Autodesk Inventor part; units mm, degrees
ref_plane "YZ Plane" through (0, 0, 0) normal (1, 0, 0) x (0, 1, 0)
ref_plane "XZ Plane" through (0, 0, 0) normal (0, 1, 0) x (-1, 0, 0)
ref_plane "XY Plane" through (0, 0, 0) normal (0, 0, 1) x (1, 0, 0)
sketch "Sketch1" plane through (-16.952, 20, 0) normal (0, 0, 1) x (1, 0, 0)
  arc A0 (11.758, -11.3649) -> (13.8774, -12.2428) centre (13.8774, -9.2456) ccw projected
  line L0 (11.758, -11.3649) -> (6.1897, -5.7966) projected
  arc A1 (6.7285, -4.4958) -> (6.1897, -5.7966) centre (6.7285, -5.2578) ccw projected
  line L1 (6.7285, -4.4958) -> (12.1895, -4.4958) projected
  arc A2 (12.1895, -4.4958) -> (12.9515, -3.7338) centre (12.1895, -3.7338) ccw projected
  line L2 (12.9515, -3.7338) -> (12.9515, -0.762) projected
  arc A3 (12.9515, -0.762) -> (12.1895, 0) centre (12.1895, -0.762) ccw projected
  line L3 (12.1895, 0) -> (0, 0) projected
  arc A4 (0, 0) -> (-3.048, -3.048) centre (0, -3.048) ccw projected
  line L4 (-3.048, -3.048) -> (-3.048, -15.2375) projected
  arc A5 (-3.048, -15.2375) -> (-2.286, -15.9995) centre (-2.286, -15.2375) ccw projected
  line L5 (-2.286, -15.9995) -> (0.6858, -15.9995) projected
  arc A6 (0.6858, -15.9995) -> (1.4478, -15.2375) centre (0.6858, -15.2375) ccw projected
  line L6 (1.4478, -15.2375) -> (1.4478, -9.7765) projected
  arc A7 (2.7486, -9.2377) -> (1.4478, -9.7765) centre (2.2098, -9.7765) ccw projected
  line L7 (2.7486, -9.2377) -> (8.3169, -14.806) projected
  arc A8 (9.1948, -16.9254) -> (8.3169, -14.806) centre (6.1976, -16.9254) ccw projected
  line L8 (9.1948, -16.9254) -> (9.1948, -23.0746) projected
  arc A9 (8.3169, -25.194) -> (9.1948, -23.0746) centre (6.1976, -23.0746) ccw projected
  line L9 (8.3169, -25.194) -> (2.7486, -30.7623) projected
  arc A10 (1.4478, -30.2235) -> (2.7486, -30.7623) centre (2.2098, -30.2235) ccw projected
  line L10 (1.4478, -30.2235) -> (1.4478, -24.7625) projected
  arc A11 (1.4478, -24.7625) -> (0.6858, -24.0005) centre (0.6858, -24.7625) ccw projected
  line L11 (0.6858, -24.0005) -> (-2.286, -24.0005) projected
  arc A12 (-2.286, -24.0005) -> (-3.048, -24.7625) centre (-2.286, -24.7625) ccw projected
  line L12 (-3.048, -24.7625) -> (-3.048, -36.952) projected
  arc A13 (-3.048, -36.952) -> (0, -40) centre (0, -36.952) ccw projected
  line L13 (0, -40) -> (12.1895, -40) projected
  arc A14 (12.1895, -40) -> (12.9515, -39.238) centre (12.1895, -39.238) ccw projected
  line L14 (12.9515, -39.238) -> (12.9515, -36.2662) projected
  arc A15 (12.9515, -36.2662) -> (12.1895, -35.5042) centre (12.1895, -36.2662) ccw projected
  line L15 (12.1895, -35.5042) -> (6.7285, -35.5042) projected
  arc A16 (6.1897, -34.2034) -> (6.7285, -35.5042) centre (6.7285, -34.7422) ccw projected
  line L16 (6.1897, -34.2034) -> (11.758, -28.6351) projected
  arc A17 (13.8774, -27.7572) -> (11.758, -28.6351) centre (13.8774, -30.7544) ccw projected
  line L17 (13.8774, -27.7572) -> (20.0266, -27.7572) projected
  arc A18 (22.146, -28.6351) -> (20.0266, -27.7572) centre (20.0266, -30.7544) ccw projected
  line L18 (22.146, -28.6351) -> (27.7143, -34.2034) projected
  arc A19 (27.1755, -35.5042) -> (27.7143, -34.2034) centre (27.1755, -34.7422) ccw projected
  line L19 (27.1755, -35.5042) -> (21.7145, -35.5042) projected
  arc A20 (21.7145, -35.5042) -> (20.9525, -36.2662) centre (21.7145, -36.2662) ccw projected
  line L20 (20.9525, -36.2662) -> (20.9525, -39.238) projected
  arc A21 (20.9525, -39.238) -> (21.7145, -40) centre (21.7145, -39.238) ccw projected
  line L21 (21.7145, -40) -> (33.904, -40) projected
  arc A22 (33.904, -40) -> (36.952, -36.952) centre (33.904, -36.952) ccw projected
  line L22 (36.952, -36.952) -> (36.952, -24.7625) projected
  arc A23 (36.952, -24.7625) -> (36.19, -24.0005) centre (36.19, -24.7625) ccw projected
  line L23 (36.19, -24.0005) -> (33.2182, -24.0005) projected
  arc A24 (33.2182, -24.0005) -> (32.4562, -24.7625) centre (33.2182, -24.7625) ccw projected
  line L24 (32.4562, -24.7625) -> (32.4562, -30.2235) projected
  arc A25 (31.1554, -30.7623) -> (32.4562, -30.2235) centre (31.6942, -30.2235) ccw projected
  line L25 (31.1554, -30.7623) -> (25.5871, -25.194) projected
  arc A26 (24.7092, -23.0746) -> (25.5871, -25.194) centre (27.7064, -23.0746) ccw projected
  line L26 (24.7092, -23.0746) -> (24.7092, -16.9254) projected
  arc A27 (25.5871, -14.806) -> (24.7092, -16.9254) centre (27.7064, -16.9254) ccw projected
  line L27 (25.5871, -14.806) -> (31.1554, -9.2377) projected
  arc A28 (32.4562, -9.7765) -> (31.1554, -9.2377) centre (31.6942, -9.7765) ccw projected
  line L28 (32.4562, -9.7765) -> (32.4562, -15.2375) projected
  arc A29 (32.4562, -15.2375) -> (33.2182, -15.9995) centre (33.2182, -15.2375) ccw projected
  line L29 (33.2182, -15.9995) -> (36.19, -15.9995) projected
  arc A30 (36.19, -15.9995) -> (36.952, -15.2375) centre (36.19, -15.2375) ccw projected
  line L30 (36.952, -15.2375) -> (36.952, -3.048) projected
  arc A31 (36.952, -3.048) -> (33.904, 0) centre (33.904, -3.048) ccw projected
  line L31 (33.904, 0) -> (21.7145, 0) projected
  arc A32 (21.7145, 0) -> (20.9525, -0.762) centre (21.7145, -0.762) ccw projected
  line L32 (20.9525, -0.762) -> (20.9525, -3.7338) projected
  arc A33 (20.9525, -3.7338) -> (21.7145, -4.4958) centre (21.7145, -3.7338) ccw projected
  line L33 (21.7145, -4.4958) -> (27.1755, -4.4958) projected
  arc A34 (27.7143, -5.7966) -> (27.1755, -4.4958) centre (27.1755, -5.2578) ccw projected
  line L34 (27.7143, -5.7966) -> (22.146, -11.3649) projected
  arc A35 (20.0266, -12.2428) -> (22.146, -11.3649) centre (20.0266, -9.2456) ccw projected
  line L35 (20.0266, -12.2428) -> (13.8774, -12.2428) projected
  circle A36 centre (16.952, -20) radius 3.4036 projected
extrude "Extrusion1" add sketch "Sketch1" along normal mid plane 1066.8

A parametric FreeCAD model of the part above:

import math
import FreeCAD as App
import Part
import Sketcher
Q = App.Units.Quantity

doc = App.newDocument("Part")
body = doc.addObject("PartDesign::Body", "Body")

# Sketch on XY plane
sketch1 = doc.addObject("Sketcher::SketchObject", "Sketch")
body.addObject(sketch1)
sketch1.AttachmentSupport = (doc.XY_Plane, [""])
sketch1.MapMode = "FlatFace"
sketch1.addGeometry([
    Part.ArcOfCircle(Part.Circle(App.Vector(-3.1, 10.8, 0), App.Vector(0, 0, 1), 3), math.radians(-135), math.radians(-90)),  # 0
    Part.LineSegment(App.Vector(-5.2, 8.6, 0), App.Vector(-10.8, 14.2, 0)),  # 1
    Part.ArcOfCircle(Part.Circle(App.Vector(-10.2, 14.7, 0), App.Vector(0, 0, 1), 0.8), math.radians(90), math.radians(225)),  # 2
    Part.LineSegment(App.Vector(-10.2, 15.5, 0), App.Vector(-4.8, 15.5, 0)),  # 3
    Part.ArcOfCircle(Part.Circle(App.Vector(-4.8, 16.3, 0), App.Vector(0, 0, 1), 0.8), math.radians(-90), math.radians(0)),  # 4
    Part.LineSegment(App.Vector(-4, 16.3, 0), App.Vector(-4, 19.2, 0)),  # 5
    Part.ArcOfCircle(Part.Circle(App.Vector(-4.8, 19.2, 0), App.Vector(0, 0, 1), 0.8), math.radians(0), math.radians(90)),  # 6
    Part.LineSegment(App.Vector(-4.8, 20, 0), App.Vector(-17, 20, 0)),  # 7
    Part.ArcOfCircle(Part.Circle(App.Vector(-17, 17, 0), App.Vector(0, 0, 1), 3), math.radians(90), math.radians(180)),  # 8
    Part.LineSegment(App.Vector(-20, 17, 0), App.Vector(-20, 4.8, 0)),  # 9
    Part.ArcOfCircle(Part.Circle(App.Vector(-19.2, 4.8, 0), App.Vector(0, 0, 1), 0.8), math.radians(180), math.radians(270)),  # 10
    Part.LineSegment(App.Vector(-19.2, 4, 0), App.Vector(-16.3, 4, 0)),  # 11
    Part.ArcOfCircle(Part.Circle(App.Vector(-16.3, 4.8, 0), App.Vector(0, 0, 1), 0.8), math.radians(-90), math.radians(0)),  # 12
    Part.LineSegment(App.Vector(-15.5, 4.8, 0), App.Vector(-15.5, 10.2, 0)),  # 13
    Part.ArcOfCircle(Part.Circle(App.Vector(-14.7, 10.2, 0), App.Vector(0, 0, 1), 0.8), math.radians(45), math.radians(180)),  # 14
    Part.LineSegment(App.Vector(-14.2, 10.8, 0), App.Vector(-8.6, 5.2, 0)),  # 15
    Part.ArcOfCircle(Part.Circle(App.Vector(-10.8, 3.1, 0), App.Vector(0, 0, 1), 3), math.radians(0), math.radians(45)),  # 16
    Part.LineSegment(App.Vector(-7.8, 3.1, 0), App.Vector(-7.8, -3.1, 0)),  # 17
    Part.ArcOfCircle(Part.Circle(App.Vector(-10.8, -3.1, 0), App.Vector(0, 0, 1), 3), math.radians(-45), math.radians(0)),  # 18
    Part.LineSegment(App.Vector(-8.6, -5.2, 0), App.Vector(-14.2, -10.8, 0)),  # 19
    Part.ArcOfCircle(Part.Circle(App.Vector(-14.7, -10.2, 0), App.Vector(0, 0, 1), 0.8), math.radians(180), math.radians(315)),  # 20
    Part.LineSegment(App.Vector(-15.5, -10.2, 0), App.Vector(-15.5, -4.8, 0)),  # 21
    Part.ArcOfCircle(Part.Circle(App.Vector(-16.3, -4.8, 0), App.Vector(0, 0, 1), 0.8), math.radians(0), math.radians(90)),  # 22
    Part.LineSegment(App.Vector(-16.3, -4, 0), App.Vector(-19.2, -4, 0)),  # 23
    Part.ArcOfCircle(Part.Circle(App.Vector(-19.2, -4.8, 0), App.Vector(0, 0, 1), 0.8), math.radians(90), math.radians(180)),  # 24
    Part.LineSegment(App.Vector(-20, -4.8, 0), App.Vector(-20, -17, 0)),  # 25
    Part.ArcOfCircle(Part.Circle(App.Vector(-17, -17, 0), App.Vector(0, 0, 1), 3), math.radians(180), math.radians(270)),  # 26
    Part.LineSegment(App.Vector(-17, -20, 0), App.Vector(-4.8, -20, 0)),  # 27
    Part.ArcOfCircle(Part.Circle(App.Vector(-4.8, -19.2, 0), App.Vector(0, 0, 1), 0.8), math.radians(-90), math.radians(0)),  # 28
    Part.LineSegment(App.Vector(-4, -19.2, 0), App.Vector(-4, -16.3, 0)),  # 29
    Part.ArcOfCircle(Part.Circle(App.Vector(-4.8, -16.3, 0), App.Vector(0, 0, 1), 0.8), math.radians(0), math.radians(90)),  # 30
    Part.LineSegment(App.Vector(-4.8, -15.5, 0), App.Vector(-10.2, -15.5, 0)),  # 31
    Part.ArcOfCircle(Part.Circle(App.Vector(-10.2, -14.7, 0), App.Vector(0, 0, 1), 0.8), math.radians(135), math.radians(270)),  # 32
    Part.LineSegment(App.Vector(-10.8, -14.2, 0), App.Vector(-5.2, -8.6, 0)),  # 33
    Part.ArcOfCircle(Part.Circle(App.Vector(-3.1, -10.8, 0), App.Vector(0, 0, 1), 3), math.radians(90), math.radians(135)),  # 34
    Part.LineSegment(App.Vector(-3.1, -7.8, 0), App.Vector(3.1, -7.8, 0)),  # 35
    Part.ArcOfCircle(Part.Circle(App.Vector(3.1, -10.8, 0), App.Vector(0, 0, 1), 3), math.radians(45), math.radians(90)),  # 36
    Part.LineSegment(App.Vector(5.2, -8.6, 0), App.Vector(10.8, -14.2, 0)),  # 37
    Part.ArcOfCircle(Part.Circle(App.Vector(10.2, -14.7, 0), App.Vector(0, 0, 1), 0.8), math.radians(-90), math.radians(45)),  # 38
    Part.LineSegment(App.Vector(10.2, -15.5, 0), App.Vector(4.8, -15.5, 0)),  # 39
    Part.ArcOfCircle(Part.Circle(App.Vector(4.8, -16.3, 0), App.Vector(0, 0, 1), 0.8), math.radians(90), math.radians(180)),  # 40
    Part.LineSegment(App.Vector(4, -16.3, 0), App.Vector(4, -19.2, 0)),  # 41
    Part.ArcOfCircle(Part.Circle(App.Vector(4.8, -19.2, 0), App.Vector(0, 0, 1), 0.8), math.radians(180), math.radians(270)),  # 42
    Part.LineSegment(App.Vector(4.8, -20, 0), App.Vector(17, -20, 0)),  # 43
    Part.ArcOfCircle(Part.Circle(App.Vector(17, -17, 0), App.Vector(0, 0, 1), 3), math.radians(-90), math.radians(0)),  # 44
    Part.LineSegment(App.Vector(20, -17, 0), App.Vector(20, -4.8, 0)),  # 45
    Part.ArcOfCircle(Part.Circle(App.Vector(19.2, -4.8, 0), App.Vector(0, 0, 1), 0.8), math.radians(0), math.radians(90)),  # 46
    Part.LineSegment(App.Vector(19.2, -4, 0), App.Vector(16.3, -4, 0)),  # 47
    Part.ArcOfCircle(Part.Circle(App.Vector(16.3, -4.8, 0), App.Vector(0, 0, 1), 0.8), math.radians(90), math.radians(180)),  # 48
    Part.LineSegment(App.Vector(15.5, -4.8, 0), App.Vector(15.5, -10.2, 0)),  # 49
    Part.ArcOfCircle(Part.Circle(App.Vector(14.7, -10.2, 0), App.Vector(0, 0, 1), 0.8), math.radians(-135), math.radians(0)),  # 50
    Part.LineSegment(App.Vector(14.2, -10.8, 0), App.Vector(8.6, -5.2, 0)),  # 51
    Part.ArcOfCircle(Part.Circle(App.Vector(10.8, -3.1, 0), App.Vector(0, 0, 1), 3), math.radians(180), math.radians(225)),  # 52
    Part.LineSegment(App.Vector(7.8, -3.1, 0), App.Vector(7.8, 3.1, 0)),  # 53
    Part.ArcOfCircle(Part.Circle(App.Vector(10.8, 3.1, 0), App.Vector(0, 0, 1), 3), math.radians(135), math.radians(180)),  # 54
    Part.LineSegment(App.Vector(8.6, 5.2, 0), App.Vector(14.2, 10.8, 0)),  # 55
    Part.ArcOfCircle(Part.Circle(App.Vector(14.7, 10.2, 0), App.Vector(0, 0, 1), 0.8), math.radians(0), math.radians(135)),  # 56
    Part.LineSegment(App.Vector(15.5, 10.2, 0), App.Vector(15.5, 4.8, 0)),  # 57
    Part.ArcOfCircle(Part.Circle(App.Vector(16.3, 4.8, 0), App.Vector(0, 0, 1), 0.8), math.radians(180), math.radians(270)),  # 58
    Part.LineSegment(App.Vector(16.3, 4, 0), App.Vector(19.2, 4, 0)),  # 59
    Part.ArcOfCircle(Part.Circle(App.Vector(19.2, 4.8, 0), App.Vector(0, 0, 1), 0.8), math.radians(-90), math.radians(0)),  # 60
    Part.LineSegment(App.Vector(20, 4.8, 0), App.Vector(20, 17, 0)),  # 61
    Part.ArcOfCircle(Part.Circle(App.Vector(17, 17, 0), App.Vector(0, 0, 1), 3), math.radians(0), math.radians(90)),  # 62
    Part.LineSegment(App.Vector(17, 20, 0), App.Vector(4.8, 20, 0)),  # 63
    Part.ArcOfCircle(Part.Circle(App.Vector(4.8, 19.2, 0), App.Vector(0, 0, 1), 0.8), math.radians(90), math.radians(180)),  # 64
    Part.LineSegment(App.Vector(4, 19.2, 0), App.Vector(4, 16.3, 0)),  # 65
    Part.ArcOfCircle(Part.Circle(App.Vector(4.8, 16.3, 0), App.Vector(0, 0, 1), 0.8), math.radians(180), math.radians(270)),  # 66
    Part.LineSegment(App.Vector(4.8, 15.5, 0), App.Vector(10.2, 15.5, 0)),  # 67
    Part.ArcOfCircle(Part.Circle(App.Vector(10.2, 14.7, 0), App.Vector(0, 0, 1), 0.8), math.radians(-45), math.radians(90)),  # 68
    Part.LineSegment(App.Vector(10.8, 14.2, 0), App.Vector(5.2, 8.6, 0)),  # 69
    Part.ArcOfCircle(Part.Circle(App.Vector(3.1, 10.8, 0), App.Vector(0, 0, 1), 3), math.radians(-90), math.radians(-45)),  # 70
    Part.LineSegment(App.Vector(3.1, 7.8, 0), App.Vector(-3.1, 7.8, 0)),  # 71
    Part.Circle(App.Vector(0, 0, 0), App.Vector(0, 0, 1), 3.4),  # 72
], False)
sketch1.addConstraint([
    Sketcher.Constraint("Tangent", 0, 1, 1, 1),
    Sketcher.Constraint("Tangent", 1, 2, 2, 2),
    Sketcher.Constraint("Tangent", 2, 1, 3, 1),
    Sketcher.Constraint("Tangent", 3, 2, 4, 1),
    Sketcher.Constraint("Tangent", 4, 2, 5, 1),
    Sketcher.Constraint("Tangent", 5, 2, 6, 1),
    Sketcher.Constraint("Tangent", 6, 2, 7, 1),
    Sketcher.Constraint("Tangent", 7, 2, 8, 1),
    Sketcher.Constraint("Tangent", 8, 2, 9, 1),
    Sketcher.Constraint("Tangent", 9, 2, 10, 1),
    Sketcher.Constraint("Tangent", 10, 2, 11, 1),
    Sketcher.Constraint("Tangent", 11, 2, 12, 1),
    Sketcher.Constraint("Tangent", 12, 2, 13, 1),
    Sketcher.Constraint("Tangent", 13, 2, 14, 2),
    Sketcher.Constraint("Tangent", 14, 1, 15, 1),
    Sketcher.Constraint("Tangent", 15, 2, 16, 2),
    Sketcher.Constraint("Tangent", 16, 1, 17, 1),
    Sketcher.Constraint("Tangent", 17, 2, 18, 2),
    Sketcher.Constraint("Tangent", 18, 1, 19, 1),
    Sketcher.Constraint("Tangent", 19, 2, 20, 2),
    Sketcher.Constraint("Tangent", 20, 1, 21, 1),
    Sketcher.Constraint("Tangent", 21, 2, 22, 1),
    Sketcher.Constraint("Tangent", 22, 2, 23, 1),
    Sketcher.Constraint("Tangent", 23, 2, 24, 1),
    Sketcher.Constraint("Tangent", 24, 2, 25, 1),
    Sketcher.Constraint("Tangent", 25, 2, 26, 1),
    Sketcher.Constraint("Tangent", 26, 2, 27, 1),
    Sketcher.Constraint("Tangent", 27, 2, 28, 1),
    Sketcher.Constraint("Tangent", 28, 2, 29, 1),
    Sketcher.Constraint("Tangent", 29, 2, 30, 1),
    Sketcher.Constraint("Tangent", 30, 2, 31, 1),
    Sketcher.Constraint("Tangent", 31, 2, 32, 2),
    Sketcher.Constraint("Tangent", 32, 1, 33, 1),
    Sketcher.Constraint("Tangent", 33, 2, 34, 2),
    Sketcher.Constraint("Tangent", 34, 1, 35, 1),
    Sketcher.Constraint("Tangent", 35, 2, 36, 2),
    Sketcher.Constraint("Tangent", 36, 1, 37, 1),
    Sketcher.Constraint("Tangent", 37, 2, 38, 2),
    Sketcher.Constraint("Tangent", 38, 1, 39, 1),
    Sketcher.Constraint("Tangent", 39, 2, 40, 1),
    Sketcher.Constraint("Tangent", 40, 2, 41, 1),
    Sketcher.Constraint("Tangent", 41, 2, 42, 1),
    Sketcher.Constraint("Tangent", 42, 2, 43, 1),
    Sketcher.Constraint("Tangent", 43, 2, 44, 1),
    Sketcher.Constraint("Tangent", 44, 2, 45, 1),
    Sketcher.Constraint("Tangent", 45, 2, 46, 1),
    Sketcher.Constraint("Tangent", 46, 2, 47, 1),
    Sketcher.Constraint("Tangent", 47, 2, 48, 1),
    Sketcher.Constraint("Tangent", 48, 2, 49, 1),
    Sketcher.Constraint("Tangent", 49, 2, 50, 2),
    Sketcher.Constraint("Tangent", 50, 1, 51, 1),
    Sketcher.Constraint("Tangent", 51, 2, 52, 2),
    Sketcher.Constraint("Tangent", 52, 1, 53, 1),
    Sketcher.Constraint("Tangent", 53, 2, 54, 2),
    Sketcher.Constraint("Tangent", 54, 1, 55, 1),
    Sketcher.Constraint("Tangent", 55, 2, 56, 2),
    Sketcher.Constraint("Tangent", 56, 1, 57, 1),
    Sketcher.Constraint("Tangent", 57, 2, 58, 1),
    Sketcher.Constraint("Tangent", 58, 2, 59, 1),
    Sketcher.Constraint("Tangent", 59, 2, 60, 1),
    Sketcher.Constraint("Tangent", 60, 2, 61, 1),
    Sketcher.Constraint("Tangent", 61, 2, 62, 1),
    Sketcher.Constraint("Tangent", 62, 2, 63, 1),
    Sketcher.Constraint("Tangent", 63, 2, 64, 1),
    Sketcher.Constraint("Tangent", 64, 2, 65, 1),
    Sketcher.Constraint("Tangent", 65, 2, 66, 1),
    Sketcher.Constraint("Tangent", 66, 2, 67, 1),
    Sketcher.Constraint("Tangent", 67, 2, 68, 2),
    Sketcher.Constraint("Tangent", 68, 1, 69, 1),
    Sketcher.Constraint("Tangent", 69, 2, 70, 2),
    Sketcher.Constraint("Tangent", 70, 1, 71, 1),
    Sketcher.Constraint("Tangent", 71, 2, 0, 2),
    Sketcher.Constraint("Horizontal", 3),
    Sketcher.Constraint("Vertical", 5),
    Sketcher.Constraint("Horizontal", 7),
    Sketcher.Constraint("Vertical", 9),
    Sketcher.Constraint("Horizontal", 11),
    Sketcher.Constraint("Vertical", 13),
    Sketcher.Constraint("Vertical", 17),
    Sketcher.Constraint("Vertical", 21),
    Sketcher.Constraint("Horizontal", 23),
    Sketcher.Constraint("Vertical", 25),
    Sketcher.Constraint("Horizontal", 27),
    Sketcher.Constraint("Vertical", 29),
    Sketcher.Constraint("Horizontal", 31),
    Sketcher.Constraint("Horizontal", 35),
    Sketcher.Constraint("Horizontal", 39),
    Sketcher.Constraint("Vertical", 41),
    Sketcher.Constraint("Horizontal", 43),
    Sketcher.Constraint("Vertical", 45),
    Sketcher.Constraint("Horizontal", 47),
    Sketcher.Constraint("Vertical", 49),
    Sketcher.Constraint("Vertical", 53),
    Sketcher.Constraint("Vertical", 57),
    Sketcher.Constraint("Horizontal", 59),
    Sketcher.Constraint("Vertical", 61),
    Sketcher.Constraint("Horizontal", 63),
    Sketcher.Constraint("Vertical", 65),
    Sketcher.Constraint("Horizontal", 67),
    Sketcher.Constraint("Horizontal", 71),
    Sketcher.Constraint("Coincident", 72, 3, -1, 1),
    Sketcher.Constraint("Equal", 2, 4),
    Sketcher.Constraint("Equal", 4, 6),
    Sketcher.Constraint("Equal", 6, 10),
    Sketcher.Constraint("Equal", 10, 12),
    Sketcher.Constraint("Equal", 12, 14),
    Sketcher.Constraint("Equal", 0, 16),
    Sketcher.Constraint("Equal", 16, 18),
    Sketcher.Constraint("Equal", 14, 20),
    Sketcher.Constraint("Equal", 20, 22),
    Sketcher.Constraint("Equal", 22, 24),
    Sketcher.Constraint("Equal", 8, 26),
    Sketcher.Constraint("Equal", 24, 28),
    Sketcher.Constraint("Equal", 28, 30),
    Sketcher.Constraint("Equal", 30, 32),
    Sketcher.Constraint("Equal", 18, 34),
    Sketcher.Constraint("Equal", 34, 36),
    Sketcher.Constraint("Equal", 32, 38),
    Sketcher.Constraint("Equal", 38, 40),
    Sketcher.Constraint("Equal", 40, 42),
    Sketcher.Constraint("Equal", 26, 44),
    Sketcher.Constraint("Equal", 42, 46),
    Sketcher.Constraint("Equal", 46, 48),
    Sketcher.Constraint("Equal", 48, 50),
    Sketcher.Constraint("Equal", 36, 52),
    Sketcher.Constraint("Equal", 52, 54),
    Sketcher.Constraint("Equal", 50, 56),
    Sketcher.Constraint("Equal", 56, 58),
    Sketcher.Constraint("Equal", 58, 60),
    Sketcher.Constraint("Equal", 44, 62),
    Sketcher.Constraint("Equal", 60, 64),
    Sketcher.Constraint("Equal", 64, 66),
    Sketcher.Constraint("Equal", 66, 68),
    Sketcher.Constraint("Equal", 54, 70),
    Sketcher.Constraint("Symmetric", 0, 3, 36, 3, -1, 1),
    Sketcher.Constraint("Symmetric", 2, 3, 38, 3, -1, 1),
    Sketcher.Constraint("Symmetric", 6, 3, 42, 3, -1, 1),
    Sketcher.Constraint("Symmetric", 10, 3, 46, 3, -1, 1),
    Sketcher.Constraint("Symmetric", 14, 3, 50, 3, -1, 1),
    Sketcher.Constraint("Symmetric", 16, 3, 52, 3, -1, 1),
    Sketcher.Constraint("Symmetric", 20, 3, 56, 3, -1, 1),
    Sketcher.Constraint("Symmetric", 24, 3, 60, 3, -1, 1),
    Sketcher.Constraint("Symmetric", 28, 3, 64, 3, -1, 1),
    Sketcher.Constraint("Symmetric", 32, 3, 68, 3, -1, 1),
    Sketcher.Constraint("Symmetric", 32, 3, 38, 3, -2),
    Sketcher.Constraint("Symmetric", 28, 3, 42, 3, -2),
    Sketcher.Constraint("Symmetric", 24, 3, 46, 3, -2),
    Sketcher.Constraint("Symmetric", 20, 3, 50, 3, -2),
    Sketcher.Constraint("Parallel", 1, 15),
    Sketcher.Constraint("Perpendicular", 15, 19),
    Sketcher.Constraint("Parallel", 19, 33),
    Sketcher.Constraint("Perpendicular", 51, 55),
    Sketcher.Constraint("Parallel", 55, 69),
    Sketcher.Constraint("Horizontal", 18, 3, 52, 3),
    Sketcher.Constraint("Equal", 59, 5),
    Sketcher.Constraint("Equal", 63, 9),
    Sketcher.Constraint("Equal", 67, 13),
    Sketcher.Constraint("Equal", 71, 17),
    Sketcher.Constraint("Equal", 1, 15),
    Sketcher.Constraint("Radius", 2, Q("0.03 in")),
    Sketcher.Constraint("Radius", 8, Q("0.12 in")),
    Sketcher.Constraint("Diameter", 72, Q("0.268 in")),
    Sketcher.Constraint("Radius", 0, Q("0.118 in")),
    Sketcher.Constraint("DistanceX", 3, 1, 3, 2, Q("0.215 in")),
    Sketcher.Constraint("DistanceX", 11, 1, 11, 2, Q("0.117 in")),
    Sketcher.Constraint("DistanceX", 7, 2, 7, 1, Q("0.4799 in")),
    Sketcher.Constraint("DistanceX", 35, 1, 35, 2, Q("0.2421 in")),
    Sketcher.Constraint("DistanceX", 4, 3, -1, 1, Q("0.1875 in")),
])
pad1 = doc.addObject("PartDesign::Pad", "Pad")
body.addObject(pad1)
pad1.Profile = sketch1
pad1.Length = Q("42 in")
pad1.Midplane = True

doc.recompute()
